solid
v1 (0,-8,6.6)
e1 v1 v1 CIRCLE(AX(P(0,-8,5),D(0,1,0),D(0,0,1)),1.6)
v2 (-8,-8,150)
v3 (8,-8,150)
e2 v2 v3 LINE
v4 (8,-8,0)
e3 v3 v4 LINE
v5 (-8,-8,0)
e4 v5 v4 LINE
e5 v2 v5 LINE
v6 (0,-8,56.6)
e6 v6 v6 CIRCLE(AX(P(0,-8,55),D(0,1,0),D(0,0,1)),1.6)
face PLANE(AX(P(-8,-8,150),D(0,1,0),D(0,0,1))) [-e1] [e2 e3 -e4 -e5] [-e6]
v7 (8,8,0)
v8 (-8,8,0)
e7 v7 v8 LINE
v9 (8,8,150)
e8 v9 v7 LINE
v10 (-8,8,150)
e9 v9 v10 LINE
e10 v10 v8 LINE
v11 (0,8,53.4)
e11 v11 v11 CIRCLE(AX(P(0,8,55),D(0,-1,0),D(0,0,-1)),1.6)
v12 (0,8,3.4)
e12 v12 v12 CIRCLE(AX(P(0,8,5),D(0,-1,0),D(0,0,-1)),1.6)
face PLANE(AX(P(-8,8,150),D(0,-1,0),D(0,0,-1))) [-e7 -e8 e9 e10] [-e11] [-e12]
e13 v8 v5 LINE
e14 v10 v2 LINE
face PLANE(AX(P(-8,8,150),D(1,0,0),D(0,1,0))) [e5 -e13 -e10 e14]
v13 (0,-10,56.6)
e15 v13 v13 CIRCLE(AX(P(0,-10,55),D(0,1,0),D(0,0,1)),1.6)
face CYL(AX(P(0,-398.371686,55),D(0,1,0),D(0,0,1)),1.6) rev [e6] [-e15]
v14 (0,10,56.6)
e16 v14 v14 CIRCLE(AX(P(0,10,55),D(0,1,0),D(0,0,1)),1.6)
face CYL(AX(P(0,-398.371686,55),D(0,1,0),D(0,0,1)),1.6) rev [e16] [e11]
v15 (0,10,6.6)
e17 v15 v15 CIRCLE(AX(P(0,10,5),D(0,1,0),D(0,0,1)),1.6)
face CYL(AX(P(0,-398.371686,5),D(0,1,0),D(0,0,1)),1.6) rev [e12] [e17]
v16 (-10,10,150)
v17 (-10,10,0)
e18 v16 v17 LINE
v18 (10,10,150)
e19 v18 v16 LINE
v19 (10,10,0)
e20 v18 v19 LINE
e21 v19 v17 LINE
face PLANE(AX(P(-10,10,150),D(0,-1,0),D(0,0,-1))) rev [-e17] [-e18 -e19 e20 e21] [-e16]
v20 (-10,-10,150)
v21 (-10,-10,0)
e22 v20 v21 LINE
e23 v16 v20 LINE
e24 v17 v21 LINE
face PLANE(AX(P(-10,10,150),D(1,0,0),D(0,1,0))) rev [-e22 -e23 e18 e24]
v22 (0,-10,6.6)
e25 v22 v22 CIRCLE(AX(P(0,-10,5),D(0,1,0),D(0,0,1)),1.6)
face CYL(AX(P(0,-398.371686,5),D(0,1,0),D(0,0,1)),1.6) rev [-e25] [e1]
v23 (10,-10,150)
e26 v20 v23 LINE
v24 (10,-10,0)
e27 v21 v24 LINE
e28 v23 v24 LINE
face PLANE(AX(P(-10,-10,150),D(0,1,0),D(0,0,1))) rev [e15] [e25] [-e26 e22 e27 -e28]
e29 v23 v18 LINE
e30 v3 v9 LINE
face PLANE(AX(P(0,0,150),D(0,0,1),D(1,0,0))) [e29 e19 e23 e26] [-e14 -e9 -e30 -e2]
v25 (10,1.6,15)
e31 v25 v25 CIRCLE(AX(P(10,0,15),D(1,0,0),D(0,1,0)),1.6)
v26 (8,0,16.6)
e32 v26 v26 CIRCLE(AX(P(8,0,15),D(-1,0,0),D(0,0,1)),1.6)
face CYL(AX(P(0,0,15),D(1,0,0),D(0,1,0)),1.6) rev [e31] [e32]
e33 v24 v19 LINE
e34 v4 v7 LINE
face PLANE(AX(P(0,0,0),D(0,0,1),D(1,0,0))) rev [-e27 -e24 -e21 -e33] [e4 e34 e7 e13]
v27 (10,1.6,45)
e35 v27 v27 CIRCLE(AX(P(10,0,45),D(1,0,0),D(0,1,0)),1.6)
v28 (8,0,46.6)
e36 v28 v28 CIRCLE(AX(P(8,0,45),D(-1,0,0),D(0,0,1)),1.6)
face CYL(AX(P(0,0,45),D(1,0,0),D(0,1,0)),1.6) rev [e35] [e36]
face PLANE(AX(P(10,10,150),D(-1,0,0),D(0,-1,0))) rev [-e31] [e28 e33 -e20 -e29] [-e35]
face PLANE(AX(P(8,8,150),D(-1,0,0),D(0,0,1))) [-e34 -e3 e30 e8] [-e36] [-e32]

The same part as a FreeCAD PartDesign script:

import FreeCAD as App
import Part
import Sketcher
from FreeCAD import Vector
Q = App.Units.Quantity


def add_polygon(sketch, points):
    """Adds a closed chain of lines whose ends are joined by coincident constraints."""
    first, n = sketch.GeometryCount, len(points)
    for a, b in zip(points, points[1:] + points[:1]):
        sketch.addGeometry(Part.LineSegment(App.Vector(*a, 0), App.Vector(*b, 0)), False)
    for i in range(n):
        sketch.addConstraint(Sketcher.Constraint("Coincident", first + i, 2, first + (i + 1) % n, 1))

doc = App.newDocument("Part")
params = doc.addObject("Spreadsheet::Sheet", "Params")
for row, (alias, value) in enumerate([
    ("sketch1_width", "20 mm"),
    ("sketch1_width2", "16 mm"),
    ("pad1_length", "150 mm"),
    ("sketch2_diameter", "3.2 mm"),
    ("pocket1_length", "408.371686 mm"),
    ("sketch3_diameter", "3.2 mm"),
    ("pocket2_length", "10 mm"),
], start=1):
    params.set(f"A{row}", alias)
    params.set(f"B{row}", "=" + value)
    params.setAlias(f"B{row}", alias)

body = doc.addObject("PartDesign::Body", "Body")

# Sketch on XY plane
sketch1 = body.newObject("Sketcher::SketchObject", "Sketch")
sketch1.AttachmentSupport = (doc.getObject("XY_Plane"), [""])
sketch1.MapMode = "FlatFace"
add_polygon(sketch1, [(-10, 10), (-10, -10), (10, -10), (10, 10)])  # lines 0-3
add_polygon(sketch1, [(8, -8), (-8, -8), (-8, 8), (8, 8)])  # lines 4-7
sketch1.addConstraint(Sketcher.Constraint("Vertical", 0))
sketch1.addConstraint(Sketcher.Constraint("Horizontal", 1))
sketch1.addConstraint(Sketcher.Constraint("Vertical", 2))
sketch1.addConstraint(Sketcher.Constraint("Horizontal", 3))
sketch1.addConstraint(Sketcher.Constraint("Horizontal", 4))
sketch1.addConstraint(Sketcher.Constraint("Vertical", 5))
sketch1.addConstraint(Sketcher.Constraint("Horizontal", 6))
sketch1.addConstraint(Sketcher.Constraint("Vertical", 7))
sketch1.addConstraint(Sketcher.Constraint("Symmetric", 0, 2, 2, 2, -1, 1))
sketch1.addConstraint(Sketcher.Constraint("Symmetric", 4, 2, 6, 2, -1, 1))
sketch1.addConstraint(Sketcher.Constraint("Equal", 3, 0))
sketch1.addConstraint(Sketcher.Constraint("Equal", 6, 5))
sketch1.addConstraint(Sketcher.Constraint("DistanceX", 1, 1, 1, 2, Q("20 mm")))
sketch1.addConstraint(Sketcher.Constraint("DistanceX", 4, 2, 4, 1, Q("16 mm")))
sketch1.setExpression("Constraints[20]", "Params.sketch1_width")
sketch1.setExpression("Constraints[21]", "Params.sketch1_width2")
pad1 = body.newObject("PartDesign::Pad", "Pad")
pad1.Profile = sketch1
pad1.setExpression("Length", "Params.pad1_length")

# Sketch on XZ plane
sketch2 = body.newObject("Sketcher::SketchObject", "Sketch001")
sketch2.AttachmentSupport = (doc.getObject("XZ_Plane"), [""])
sketch2.MapMode = "FlatFace"
sketch2.AttachmentOffset = App.Placement(Vector(0, 0, -10), App.Rotation())
sketch2.addGeometry(Part.Circle(Vector(0, 5, 0), Vector(0, 0, 1), 1.6), False)
sketch2.addGeometry(Part.Circle(Vector(0, 55, 0), Vector(0, 0, 1), 1.6), False)
sketch2.addConstraint(Sketcher.Constraint("Equal", 0, 1))
sketch2.addConstraint(Sketcher.Constraint("PointOnObject", 0, 3, -2))
sketch2.addConstraint(Sketcher.Constraint("PointOnObject", 1, 3, -2))
sketch2.addConstraint(Sketcher.Constraint("Diameter", 0, Q("3.2 mm")))
sketch2.addConstraint(Sketcher.Constraint("DistanceY", -1, 1, 0, 3, Q("5 mm")))
sketch2.addConstraint(Sketcher.Constraint("DistanceY", -1, 1, 1, 3, Q("55 mm")))
sketch2.setExpression("Constraints[3]", "Params.sketch2_diameter")
pocket1 = body.newObject("PartDesign::Pocket", "Pocket")
pocket1.Profile = sketch2
pocket1.setExpression("Length", "Params.pocket1_length")
pocket1.Reversed = True

# Sketch on YZ plane
sketch3 = body.newObject("Sketcher::SketchObject", "Sketch002")
sketch3.AttachmentSupport = (doc.getObject("YZ_Plane"), [""])
sketch3.MapMode = "FlatFace"
sketch3.AttachmentOffset = App.Placement(Vector(0, 0, 10), App.Rotation())
sketch3.addGeometry(Part.Circle(Vector(0, 15, 0), Vector(0, 0, 1), 1.6), False)
sketch3.addGeometry(Part.Circle(Vector(0, 45, 0), Vector(0, 0, 1), 1.6), False)
sketch3.addConstraint(Sketcher.Constraint("Equal", 0, 1))
sketch3.addConstraint(Sketcher.Constraint("PointOnObject", 0, 3, -2))
sketch3.addConstraint(Sketcher.Constraint("PointOnObject", 1, 3, -2))
sketch3.addConstraint(Sketcher.Constraint("Diameter", 0, Q("3.2 mm")))
sketch3.addConstraint(Sketcher.Constraint("DistanceY", -1, 1, 0, 3, Q("15 mm")))
sketch3.addConstraint(Sketcher.Constraint("DistanceY", -1, 1, 1, 3, Q("45 mm")))
sketch3.setExpression("Constraints[3]", "Params.sketch3_diameter")
pocket2 = body.newObject("PartDesign::Pocket", "Pocket001")
pocket2.Profile = sketch3
pocket2.setExpression("Length", "Params.pocket2_length")

doc.recompute()
